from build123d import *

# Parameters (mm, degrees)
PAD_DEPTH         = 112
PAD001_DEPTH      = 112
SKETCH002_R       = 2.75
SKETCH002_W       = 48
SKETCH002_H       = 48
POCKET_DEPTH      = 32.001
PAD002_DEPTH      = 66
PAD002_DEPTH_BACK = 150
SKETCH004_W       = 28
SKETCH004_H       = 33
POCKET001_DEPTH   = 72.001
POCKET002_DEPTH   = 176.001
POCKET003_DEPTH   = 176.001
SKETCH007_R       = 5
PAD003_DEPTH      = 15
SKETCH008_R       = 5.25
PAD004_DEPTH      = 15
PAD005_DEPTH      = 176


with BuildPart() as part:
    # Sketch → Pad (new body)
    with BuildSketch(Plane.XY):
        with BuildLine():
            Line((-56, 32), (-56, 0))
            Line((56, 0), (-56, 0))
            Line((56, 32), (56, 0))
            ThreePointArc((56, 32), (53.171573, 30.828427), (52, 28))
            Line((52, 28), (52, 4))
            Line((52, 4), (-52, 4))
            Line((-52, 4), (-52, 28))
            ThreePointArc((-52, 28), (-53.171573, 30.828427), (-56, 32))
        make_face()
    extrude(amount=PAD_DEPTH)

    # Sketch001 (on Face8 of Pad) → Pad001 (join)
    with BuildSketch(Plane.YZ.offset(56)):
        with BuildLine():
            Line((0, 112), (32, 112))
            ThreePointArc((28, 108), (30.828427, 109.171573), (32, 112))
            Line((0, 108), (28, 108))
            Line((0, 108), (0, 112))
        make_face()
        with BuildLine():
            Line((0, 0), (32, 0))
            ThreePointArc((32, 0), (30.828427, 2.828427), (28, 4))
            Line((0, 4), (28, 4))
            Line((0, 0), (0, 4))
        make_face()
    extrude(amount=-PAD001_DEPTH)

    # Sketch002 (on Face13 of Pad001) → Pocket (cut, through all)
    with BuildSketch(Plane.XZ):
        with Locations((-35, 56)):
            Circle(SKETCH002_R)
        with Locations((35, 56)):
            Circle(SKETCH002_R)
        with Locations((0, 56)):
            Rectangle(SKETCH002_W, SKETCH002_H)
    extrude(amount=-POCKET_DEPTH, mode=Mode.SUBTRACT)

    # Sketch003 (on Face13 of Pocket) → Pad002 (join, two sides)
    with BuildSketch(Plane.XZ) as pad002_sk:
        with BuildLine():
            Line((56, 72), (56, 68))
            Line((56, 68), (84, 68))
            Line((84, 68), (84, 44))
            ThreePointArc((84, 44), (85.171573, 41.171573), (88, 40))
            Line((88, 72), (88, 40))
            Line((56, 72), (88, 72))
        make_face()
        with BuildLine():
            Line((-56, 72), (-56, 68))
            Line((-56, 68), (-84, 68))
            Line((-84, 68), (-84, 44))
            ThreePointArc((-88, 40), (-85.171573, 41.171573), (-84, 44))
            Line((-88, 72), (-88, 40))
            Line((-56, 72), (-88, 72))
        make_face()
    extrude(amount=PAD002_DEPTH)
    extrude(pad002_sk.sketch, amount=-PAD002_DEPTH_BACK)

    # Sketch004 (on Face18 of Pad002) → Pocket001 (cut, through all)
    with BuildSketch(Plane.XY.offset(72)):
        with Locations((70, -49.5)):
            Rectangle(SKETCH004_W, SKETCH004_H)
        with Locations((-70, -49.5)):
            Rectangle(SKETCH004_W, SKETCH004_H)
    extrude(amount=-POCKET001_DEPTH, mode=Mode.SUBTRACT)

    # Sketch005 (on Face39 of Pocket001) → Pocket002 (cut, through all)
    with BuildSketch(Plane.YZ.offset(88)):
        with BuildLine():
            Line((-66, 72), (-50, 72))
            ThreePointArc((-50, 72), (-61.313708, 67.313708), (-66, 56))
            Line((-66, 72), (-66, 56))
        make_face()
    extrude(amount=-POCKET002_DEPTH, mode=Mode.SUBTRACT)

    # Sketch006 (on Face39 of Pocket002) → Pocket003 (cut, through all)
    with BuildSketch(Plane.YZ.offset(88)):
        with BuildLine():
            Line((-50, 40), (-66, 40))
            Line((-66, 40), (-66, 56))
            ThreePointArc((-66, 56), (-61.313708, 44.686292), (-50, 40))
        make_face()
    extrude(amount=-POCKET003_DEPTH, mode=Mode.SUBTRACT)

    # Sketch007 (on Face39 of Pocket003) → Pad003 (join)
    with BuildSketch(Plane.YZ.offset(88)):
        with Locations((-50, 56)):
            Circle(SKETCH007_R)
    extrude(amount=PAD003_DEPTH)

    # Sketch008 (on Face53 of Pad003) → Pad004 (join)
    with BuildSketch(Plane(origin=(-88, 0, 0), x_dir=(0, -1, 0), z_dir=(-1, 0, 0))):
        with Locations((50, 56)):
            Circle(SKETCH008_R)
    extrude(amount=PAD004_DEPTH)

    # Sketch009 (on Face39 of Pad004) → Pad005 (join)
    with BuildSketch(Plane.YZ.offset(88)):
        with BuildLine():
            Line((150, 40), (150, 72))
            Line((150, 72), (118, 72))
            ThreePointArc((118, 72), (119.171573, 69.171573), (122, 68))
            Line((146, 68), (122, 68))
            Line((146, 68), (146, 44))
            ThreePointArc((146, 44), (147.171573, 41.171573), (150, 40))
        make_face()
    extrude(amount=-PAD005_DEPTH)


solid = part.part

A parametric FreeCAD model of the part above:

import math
import FreeCAD as App
import Part
import Sketcher

V = App.Vector
Q = App.Units.Quantity

doc = App.newDocument("Part")
body = doc.addObject("PartDesign::Body", "Body")

sketch1 = body.newObject("Sketcher::SketchObject", "Sketch")
sketch1.AttachmentSupport = (doc.getObject("XY_Plane"), [""])
sketch1.MapMode = "FlatFace"
sketch1.addGeometry([
    Part.LineSegment(V(-56, 32, 0), V(-56, 0, 0)),
    Part.LineSegment(V(-56, 0, 0), V(56, 0, 0)),
    Part.LineSegment(V(56, 0, 0), V(56, 32, 0)),
    Part.ArcOfCircle(Part.Circle(V(56, 28, 0), V(0, 0, 1), 4), math.radians(90), math.radians(180)),
    Part.LineSegment(V(52, 28, 0), V(52, 4, 0)),
    Part.LineSegment(V(52, 4, 0), V(-52, 4, 0)),
    Part.LineSegment(V(-52, 4, 0), V(-52, 28, 0)),
    Part.ArcOfCircle(Part.Circle(V(-56, 28, 0), V(0, 0, 1), 4), math.radians(0), math.radians(90)),
], False)
sketch1.addConstraint([
    Sketcher.Constraint("Coincident", 0, 2, 1, 1),
    Sketcher.Constraint("Coincident", 1, 2, 2, 1),
    Sketcher.Constraint("Coincident", 2, 2, 3, 1),
    Sketcher.Constraint("Tangent", 3, 2, 4, 1),
    Sketcher.Constraint("Coincident", 4, 2, 5, 1),
    Sketcher.Constraint("Coincident", 5, 2, 6, 1),
    Sketcher.Constraint("Tangent", 6, 2, 7, 1),
    Sketcher.Constraint("Coincident", 7, 2, 0, 1),
    Sketcher.Constraint("Vertical", 0),
    Sketcher.Constraint("Horizontal", 1),
    Sketcher.Constraint("Vertical", 2),
    Sketcher.Constraint("Vertical", 4),
    Sketcher.Constraint("Horizontal", 5),
    Sketcher.Constraint("Vertical", 6),
    Sketcher.Constraint("Equal", 3, 7),
    Sketcher.Constraint("Symmetric", 0, 2, 1, 2, -1, 1),
    Sketcher.Constraint("Symmetric", 3, 3, 7, 3, -2),
    Sketcher.Constraint("Vertical", 7, 3, 0, 2),
    Sketcher.Constraint("Radius", 3, Q("4 mm")),
    Sketcher.Constraint("DistanceX", 1, 1, 1, 2, Q("112 mm")),
    Sketcher.Constraint("DistanceY", 0, 2, 0, 1, Q("32 mm")),
    Sketcher.Constraint("DistanceY", 4, 2, 4, 1, Q("24 mm")),
])
pad1 = body.newObject("PartDesign::Pad", "Pad")
pad1.Profile = sketch1
pad1.Length = 112

sketch2 = body.newObject("Sketcher::SketchObject", "Sketch001")
sketch2.AttachmentSupport = (doc.getObject("YZ_Plane"), [""])
sketch2.MapMode = "FlatFace"
sketch2.AttachmentOffset = App.Placement(V(0, 0, 56), App.Rotation())
sketch2.addGeometry([
    Part.LineSegment(V(32, 112, 0), V(0, 112, 0)),
    Part.LineSegment(V(0, 112, 0), V(0, 108, 0)),
    Part.LineSegment(V(0, 108, 0), V(28, 108, 0)),
    Part.ArcOfCircle(Part.Circle(V(28, 112, 0), V(0, 0, 1), 4), math.radians(-90), math.radians(0)),
    Part.LineSegment(V(0, 0, 0), V(32, 0, 0)),
    Part.ArcOfCircle(Part.Circle(V(28, 0, 0), V(0, 0, 1), 4), math.radians(0), math.radians(90)),
    Part.LineSegment(V(28, 4, 0), V(0, 4, 0)),
    Part.LineSegment(V(0, 4, 0), V(0, 0, 0)),
], False)
sketch2.addConstraint([
    Sketcher.Constraint("Coincident", 0, 2, 1, 1),
    Sketcher.Constraint("Coincident", 1, 2, 2, 1),
    Sketcher.Constraint("Tangent", 2, 2, 3, 1),
    Sketcher.Constraint("Coincident", 3, 2, 0, 1),
    Sketcher.Constraint("Coincident", 4, 2, 5, 1),
    Sketcher.Constraint("Tangent", 5, 2, 6, 1),
    Sketcher.Constraint("Coincident", 6, 2, 7, 1),
    Sketcher.Constraint("Coincident", 7, 2, 4, 1),
    Sketcher.Constraint("Horizontal", 0),
    Sketcher.Constraint("Vertical", 1),
    Sketcher.Constraint("Horizontal", 2),
    Sketcher.Constraint("Horizontal", 4),
    Sketcher.Constraint("Horizontal", 6),
    Sketcher.Constraint("Vertical", 7),
    Sketcher.Constraint("Coincident", 7, 2, -1, 1),
    Sketcher.Constraint("Equal", 3, 5),
    Sketcher.Constraint("PointOnObject", 5, 3, -1),
    Sketcher.Constraint("PointOnObject", 0, 2, -2),
    Sketcher.Constraint("Horizontal", 3, 3, 0, 2),
    Sketcher.Constraint("Vertical", 3, 3, 5, 3),
    Sketcher.Constraint("Radius", 3, Q("4 mm")),
    Sketcher.Constraint("DistanceX", 0, 2, 0, 1, Q("32 mm")),
    Sketcher.Constraint("DistanceY", -1, 1, 3, 3, Q("112 mm")),
])
pad2 = body.newObject("PartDesign::Pad", "Pad001")
pad2.Profile = sketch2
pad2.Length = 112
pad2.Reversed = True

sketch3 = body.newObject("Sketcher::SketchObject", "Sketch002")
sketch3.AttachmentSupport = (doc.getObject("XZ_Plane"), [""])
sketch3.MapMode = "FlatFace"
sketch3.addGeometry([
    Part.Circle(V(-35, 56, 0), V(0, 0, 1), 2.8),
    Part.Circle(V(35, 56, 0), V(0, 0, 1), 2.8),
    Part.LineSegment(V(-24, 80, 0), V(-24, 32, 0)),
    Part.LineSegment(V(-24, 32, 0), V(24, 32, 0)),
    Part.LineSegment(V(24, 32, 0), V(24, 80, 0)),
    Part.LineSegment(V(24, 80, 0), V(-24, 80, 0)),
], False)
sketch3.addConstraint([
    Sketcher.Constraint("Coincident", 2, 2, 3, 1),
    Sketcher.Constraint("Coincident", 3, 2, 4, 1),
    Sketcher.Constraint("Coincident", 4, 2, 5, 1),
    Sketcher.Constraint("Coincident", 5, 2, 2, 1),
    Sketcher.Constraint("Vertical", 2),
    Sketcher.Constraint("Horizontal", 3),
    Sketcher.Constraint("Vertical", 4),
    Sketcher.Constraint("Horizontal", 5),
    Sketcher.Constraint("Equal", 0, 1),
    Sketcher.Constraint("Symmetric", 0, 3, 1, 3, -2),
    Sketcher.Constraint("Equal", 5, 2),
    Sketcher.Constraint("Diameter", 0, Q("5.5 mm")),
    Sketcher.Constraint("DistanceX", 3, 1, 3, 2, Q("48 mm")),
    Sketcher.Constraint("DistanceX", 0, 3, -1, 1, Q("35 mm")),
    Sketcher.Constraint("DistanceY", -1, 1, 0, 3, Q("56 mm")),
    Sketcher.Constraint("DistanceX", 2, 2, -1, 1, Q("24 mm")),
    Sketcher.Constraint("DistanceY", -1, 1, 2, 2, Q("32 mm")),
])
pocket1 = body.newObject("PartDesign::Pocket", "Pocket")
pocket1.Profile = sketch3
pocket1.Type = "ThroughAll"

sketch4 = body.newObject("Sketcher::SketchObject", "Sketch003")
sketch4.AttachmentSupport = (doc.getObject("XZ_Plane"), [""])
sketch4.MapMode = "FlatFace"
sketch4.addGeometry([
    Part.LineSegment(V(56, 72, 0), V(56, 68, 0)),
    Part.LineSegment(V(56, 68, 0), V(84, 68, 0)),
    Part.LineSegment(V(84, 68, 0), V(84, 44, 0)),
    Part.ArcOfCircle(Part.Circle(V(88, 44, 0), V(0, 0, 1), 4), math.radians(-180), math.radians(-90)),
    Part.LineSegment(V(88, 40, 0), V(88, 72, 0)),
    Part.LineSegment(V(88, 72, 0), V(56, 72, 0)),
    Part.LineSegment(V(-56, 68, 0), V(-56, 72, 0)),
    Part.LineSegment(V(-56, 72, 0), V(-88, 72, 0)),
    Part.LineSegment(V(-88, 72, 0), V(-88, 40, 0)),
    Part.ArcOfCircle(Part.Circle(V(-88, 44, 0), V(0, 0, 1), 4), math.radians(-90), math.radians(0)),
    Part.LineSegment(V(-84, 44, 0), V(-84, 68, 0)),
    Part.LineSegment(V(-84, 68, 0), V(-56, 68, 0)),
], False)
sketch4.addConstraint([
    Sketcher.Constraint("Coincident", 0, 2, 1, 1),
    Sketcher.Constraint("Coincident", 1, 2, 2, 1),
    Sketcher.Constraint("Tangent", 2, 2, 3, 1),
    Sketcher.Constraint("Coincident", 3, 2, 4, 1),
    Sketcher.Constraint("Coincident", 4, 2, 5, 1),
    Sketcher.Constraint("Coincident", 5, 2, 0, 1),
    Sketcher.Constraint("Coincident", 6, 2, 7, 1),
    Sketcher.Constraint("Coincident", 7, 2, 8, 1),
    Sketcher.Constraint("Coincident", 8, 2, 9, 1),
    Sketcher.Constraint("Tangent", 9, 2, 10, 1),
    Sketcher.Constraint("Coincident", 10, 2, 11, 1),
    Sketcher.Constraint("Coincident", 11, 2, 6, 1),
    Sketcher.Constraint("Vertical", 0),
    Sketcher.Constraint("Horizontal", 1),
    Sketcher.Constraint("Vertical", 2),
    Sketcher.Constraint("Vertical", 4),
    Sketcher.Constraint("Horizontal", 5),
    Sketcher.Constraint("Vertical", 6),
    Sketcher.Constraint("Horizontal", 7),
    Sketcher.Constraint("Vertical", 8),
    Sketcher.Constraint("Vertical", 10),
    Sketcher.Constraint("Horizontal", 11),
    Sketcher.Constraint("Equal", 3, 9),
    Sketcher.Constraint("Symmetric", 3, 3, 9, 3, -2),
    Sketcher.Constraint("Symmetric", 5, 2, 6, 2, -2),
    Sketcher.Constraint("Horizontal", 1, 2, 10, 2),
    Sketcher.Constraint("Vertical", 9, 3, 7, 2),
    Sketcher.Constraint("Equal", 5, 7),
    Sketcher.Constraint("Equal", 7, 4),
    Sketcher.Constraint("Radius", 3, Q("4 mm")),
    Sketcher.Constraint("DistanceX", 1, 1, 1, 2, Q("28 mm")),
    Sketcher.Constraint("DistanceY", 0, 2, 0, 1, Q("4 mm")),
    Sketcher.Constraint("DistanceX", -1, 1, 3, 3, Q("88 mm")),
    Sketcher.Constraint("DistanceY", -1, 1, 3, 3, Q("44 mm")),
])
pad3 = body.newObject("PartDesign::Pad", "Pad002")
pad3.Profile = sketch4
pad3.Type = "TwoLengths"
pad3.Length = 66
pad3.Length2 = 150

sketch5 = body.newObject("Sketcher::SketchObject", "Sketch004")
sketch5.AttachmentSupport = (doc.getObject("XY_Plane"), [""])
sketch5.MapMode = "FlatFace"
sketch5.AttachmentOffset = App.Placement(V(0, 0, 72), App.Rotation())
sketch5.addGeometry([
    Part.LineSegment(V(56, -33, 0), V(56, -66, 0)),
    Part.LineSegment(V(56, -66, 0), V(84, -66, 0)),
    Part.LineSegment(V(84, -66, 0), V(84, -33, 0)),
    Part.LineSegment(V(84, -33, 0), V(56, -33, 0)),
    Part.LineSegment(V(-84, -33, 0), V(-84, -66, 0)),
    Part.LineSegment(V(-84, -66, 0), V(-56, -66, 0)),
    Part.LineSegment(V(-56, -66, 0), V(-56, -33, 0)),
    Part.LineSegment(V(-56, -33, 0), V(-84, -33, 0)),
], False)
sketch5.addConstraint([
    Sketcher.Constraint("Coincident", 0, 2, 1, 1),
    Sketcher.Constraint("Coincident", 1, 2, 2, 1),
    Sketcher.Constraint("Coincident", 2, 2, 3, 1),
    Sketcher.Constraint("Coincident", 3, 2, 0, 1),
    Sketcher.Constraint("Coincident", 4, 2, 5, 1),
    Sketcher.Constraint("Coincident", 5, 2, 6, 1),
    Sketcher.Constraint("Coincident", 6, 2, 7, 1),
    Sketcher.Constraint("Coincident", 7, 2, 4, 1),
    Sketcher.Constraint("Vertical", 0),
    Sketcher.Constraint("Horizontal", 1),
    Sketcher.Constraint("Vertical", 2),
    Sketcher.Constraint("Horizontal", 3),
    Sketcher.Constraint("Vertical", 4),
    Sketcher.Constraint("Horizontal", 5),
    Sketcher.Constraint("Vertical", 6),
    Sketcher.Constraint("Horizontal", 7),
    Sketcher.Constraint("Symmetric", 1, 2, 4, 2, -2),
    Sketcher.Constraint("Symmetric", 3, 2, 6, 2, -2),
    Sketcher.Constraint("DistanceX", 1, 1, 1, 2, Q("28 mm")),
    Sketcher.Constraint("DistanceY", 0, 2, 0, 1, Q("33 mm")),
    Sketcher.Constraint("DistanceX", -1, 1, 0, 2, Q("56 mm")),
    Sketcher.Constraint("DistanceY", 0, 2, -1, 1, Q("66 mm")),
])
pocket2 = body.newObject("PartDesign::Pocket", "Pocket001")
pocket2.Profile = sketch5
pocket2.Type = "ThroughAll"

sketch6 = body.newObject("Sketcher::SketchObject", "Sketch005")
sketch6.AttachmentSupport = (doc.getObject("YZ_Plane"), [""])
sketch6.MapMode = "FlatFace"
sketch6.AttachmentOffset = App.Placement(V(0, 0, 88), App.Rotation())
sketch6.addGeometry([
    Part.LineSegment(V(-50, 72, 0), V(-66, 72, 0)),
    Part.LineSegment(V(-66, 72, 0), V(-66, 56, 0)),
    Part.ArcOfCircle(Part.Circle(V(-50, 56, 0), V(0, 0, 1), 16), math.radians(90), math.radians(180)),
], False)
sketch6.addConstraint([
    Sketcher.Constraint("Coincident", 0, 2, 1, 1),
    Sketcher.Constraint("Tangent", 1, 2, 2, 2),
    Sketcher.Constraint("Tangent", 2, 1, 0, 1),
    Sketcher.Constraint("Horizontal", 0),
    Sketcher.Constraint("Vertical", 1),
    Sketcher.Constraint("Radius", 2, Q("16.000002 mm")),
    Sketcher.Constraint("DistanceX", 2, 3, -1, 1, Q("49.999998 mm")),
    Sketcher.Constraint("DistanceY", -1, 1, 2, 3, Q("55.999998 mm")),
])
pocket3 = body.newObject("PartDesign::Pocket", "Pocket002")
pocket3.Profile = sketch6
pocket3.Type = "ThroughAll"

sketch7 = body.newObject("Sketcher::SketchObject", "Sketch006")
sketch7.AttachmentSupport = (doc.getObject("YZ_Plane"), [""])
sketch7.MapMode = "FlatFace"
sketch7.AttachmentOffset = App.Placement(V(0, 0, 88), App.Rotation())
sketch7.addGeometry([
    Part.LineSegment(V(-66, 40, 0), V(-50, 40, 0)),
    Part.ArcOfCircle(Part.Circle(V(-50, 56, 0), V(0, 0, 1), 16), math.radians(-180), math.radians(-90)),
    Part.LineSegment(V(-66, 56, 0), V(-66, 40, 0)),
], False)
sketch7.addConstraint([
    Sketcher.Constraint("Tangent", 0, 2, 1, 2),
    Sketcher.Constraint("Tangent", 1, 1, 2, 1),
    Sketcher.Constraint("Coincident", 2, 2, 0, 1),
    Sketcher.Constraint("Horizontal", 0),
    Sketcher.Constraint("Vertical", 2),
    Sketcher.Constraint("Radius", 1, Q("16.000002 mm")),
    Sketcher.Constraint("DistanceX", 1, 3, -1, 1, Q("49.999998 mm")),
    Sketcher.Constraint("DistanceY", -1, 1, 1, 3, Q("56.000002 mm")),
])
pocket4 = body.newObject("PartDesign::Pocket", "Pocket003")
pocket4.Profile = sketch7
pocket4.Type = "ThroughAll"

sketch8 = body.newObject("Sketcher::SketchObject", "Sketch007")
sketch8.AttachmentSupport = (doc.getObject("YZ_Plane"), [""])
sketch8.MapMode = "FlatFace"
sketch8.AttachmentOffset = App.Placement(V(0, 0, 88), App.Rotation())
sketch8.addGeometry(Part.Circle(V(-50, 56, 0), V(0, 0, 1), 5), False)
sketch8.addConstraint([
    Sketcher.Constraint("Diameter", 0, Q("10 mm")),
    Sketcher.Constraint("DistanceX", 0, 3, -1, 1, Q("50 mm")),
    Sketcher.Constraint("DistanceY", -1, 1, 0, 3, Q("56 mm")),
])
pad4 = body.newObject("PartDesign::Pad", "Pad003")
pad4.Profile = sketch8
pad4.Length = 15

sketch9 = body.newObject("Sketcher::SketchObject", "Sketch008")
sketch9.AttachmentSupport = (doc.getObject("YZ_Plane"), [""])
sketch9.MapMode = "FlatFace"
sketch9.AttachmentOffset = App.Placement(V(0, 0, -88), App.Rotation())
sketch9.addGeometry(Part.Circle(V(-50, 56, 0), V(0, 0, 1), 5), False)
sketch9.addConstraint([
    Sketcher.Constraint("Diameter", 0, Q("10.5 mm")),
    Sketcher.Constraint("DistanceX", 0, 3, -1, 1, Q("50 mm")),
    Sketcher.Constraint("DistanceY", -1, 1, 0, 3, Q("56 mm")),
])
pad5 = body.newObject("PartDesign::Pad", "Pad004")
pad5.Profile = sketch9
pad5.Length = 15
pad5.Reversed = True

sketch10 = body.newObject("Sketcher::SketchObject", "Sketch009")
sketch10.AttachmentSupport = (doc.getObject("YZ_Plane"), [""])
sketch10.MapMode = "FlatFace"
sketch10.AttachmentOffset = App.Placement(V(0, 0, 88), App.Rotation())
sketch10.addGeometry([
    Part.LineSegment(V(150, 40, 0), V(150, 72, 0)),
    Part.LineSegment(V(150, 72, 0), V(118, 72, 0)),
    Part.ArcOfCircle(Part.Circle(V(122, 72, 0), V(0, 0, 1), 4), math.radians(-180), math.radians(-90)),
    Part.LineSegment(V(122, 68, 0), V(146, 68, 0)),
    Part.LineSegment(V(146, 68, 0), V(146, 44, 0)),
    Part.ArcOfCircle(Part.Circle(V(150, 44, 0), V(0, 0, 1), 4), math.radians(-180), math.radians(-90)),
], False)
sketch10.addConstraint([
    Sketcher.Constraint("Coincident", 0, 2, 1, 1),
    Sketcher.Constraint("Coincident", 1, 2, 2, 1),
    Sketcher.Constraint("Tangent", 2, 2, 3, 1),
    Sketcher.Constraint("Coincident", 3, 2, 4, 1),
    Sketcher.Constraint("Tangent", 4, 2, 5, 1),
    Sketcher.Constraint("Coincident", 5, 2, 0, 1),
    Sketcher.Constraint("Vertical", 0),
    Sketcher.Constraint("Horizontal", 1),
    Sketcher.Constraint("Horizontal", 3),
    Sketcher.Constraint("Vertical", 4),
    Sketcher.Constraint("Equal", 2, 5),
    Sketcher.Constraint("Horizontal", 2, 3, 0, 2),
    Sketcher.Constraint("Vertical", 5, 3, 0, 2),
    Sketcher.Constraint("Equal", 1, 0),
    Sketcher.Constraint("Radius", 2, Q("4 mm")),
    Sketcher.Constraint("DistanceX", 1, 2, 1, 1, Q("32 mm")),
    Sketcher.Constraint("DistanceX", -1, 1, 2, 3, Q("122 mm")),
    Sketcher.Constraint("DistanceY", -1, 1, 2, 3, Q("72 mm")),
])
pad6 = body.newObject("PartDesign::Pad", "Pad005")
pad6.Profile = sketch10
pad6.Length = 176
pad6.Reversed = True

doc.recompute()
